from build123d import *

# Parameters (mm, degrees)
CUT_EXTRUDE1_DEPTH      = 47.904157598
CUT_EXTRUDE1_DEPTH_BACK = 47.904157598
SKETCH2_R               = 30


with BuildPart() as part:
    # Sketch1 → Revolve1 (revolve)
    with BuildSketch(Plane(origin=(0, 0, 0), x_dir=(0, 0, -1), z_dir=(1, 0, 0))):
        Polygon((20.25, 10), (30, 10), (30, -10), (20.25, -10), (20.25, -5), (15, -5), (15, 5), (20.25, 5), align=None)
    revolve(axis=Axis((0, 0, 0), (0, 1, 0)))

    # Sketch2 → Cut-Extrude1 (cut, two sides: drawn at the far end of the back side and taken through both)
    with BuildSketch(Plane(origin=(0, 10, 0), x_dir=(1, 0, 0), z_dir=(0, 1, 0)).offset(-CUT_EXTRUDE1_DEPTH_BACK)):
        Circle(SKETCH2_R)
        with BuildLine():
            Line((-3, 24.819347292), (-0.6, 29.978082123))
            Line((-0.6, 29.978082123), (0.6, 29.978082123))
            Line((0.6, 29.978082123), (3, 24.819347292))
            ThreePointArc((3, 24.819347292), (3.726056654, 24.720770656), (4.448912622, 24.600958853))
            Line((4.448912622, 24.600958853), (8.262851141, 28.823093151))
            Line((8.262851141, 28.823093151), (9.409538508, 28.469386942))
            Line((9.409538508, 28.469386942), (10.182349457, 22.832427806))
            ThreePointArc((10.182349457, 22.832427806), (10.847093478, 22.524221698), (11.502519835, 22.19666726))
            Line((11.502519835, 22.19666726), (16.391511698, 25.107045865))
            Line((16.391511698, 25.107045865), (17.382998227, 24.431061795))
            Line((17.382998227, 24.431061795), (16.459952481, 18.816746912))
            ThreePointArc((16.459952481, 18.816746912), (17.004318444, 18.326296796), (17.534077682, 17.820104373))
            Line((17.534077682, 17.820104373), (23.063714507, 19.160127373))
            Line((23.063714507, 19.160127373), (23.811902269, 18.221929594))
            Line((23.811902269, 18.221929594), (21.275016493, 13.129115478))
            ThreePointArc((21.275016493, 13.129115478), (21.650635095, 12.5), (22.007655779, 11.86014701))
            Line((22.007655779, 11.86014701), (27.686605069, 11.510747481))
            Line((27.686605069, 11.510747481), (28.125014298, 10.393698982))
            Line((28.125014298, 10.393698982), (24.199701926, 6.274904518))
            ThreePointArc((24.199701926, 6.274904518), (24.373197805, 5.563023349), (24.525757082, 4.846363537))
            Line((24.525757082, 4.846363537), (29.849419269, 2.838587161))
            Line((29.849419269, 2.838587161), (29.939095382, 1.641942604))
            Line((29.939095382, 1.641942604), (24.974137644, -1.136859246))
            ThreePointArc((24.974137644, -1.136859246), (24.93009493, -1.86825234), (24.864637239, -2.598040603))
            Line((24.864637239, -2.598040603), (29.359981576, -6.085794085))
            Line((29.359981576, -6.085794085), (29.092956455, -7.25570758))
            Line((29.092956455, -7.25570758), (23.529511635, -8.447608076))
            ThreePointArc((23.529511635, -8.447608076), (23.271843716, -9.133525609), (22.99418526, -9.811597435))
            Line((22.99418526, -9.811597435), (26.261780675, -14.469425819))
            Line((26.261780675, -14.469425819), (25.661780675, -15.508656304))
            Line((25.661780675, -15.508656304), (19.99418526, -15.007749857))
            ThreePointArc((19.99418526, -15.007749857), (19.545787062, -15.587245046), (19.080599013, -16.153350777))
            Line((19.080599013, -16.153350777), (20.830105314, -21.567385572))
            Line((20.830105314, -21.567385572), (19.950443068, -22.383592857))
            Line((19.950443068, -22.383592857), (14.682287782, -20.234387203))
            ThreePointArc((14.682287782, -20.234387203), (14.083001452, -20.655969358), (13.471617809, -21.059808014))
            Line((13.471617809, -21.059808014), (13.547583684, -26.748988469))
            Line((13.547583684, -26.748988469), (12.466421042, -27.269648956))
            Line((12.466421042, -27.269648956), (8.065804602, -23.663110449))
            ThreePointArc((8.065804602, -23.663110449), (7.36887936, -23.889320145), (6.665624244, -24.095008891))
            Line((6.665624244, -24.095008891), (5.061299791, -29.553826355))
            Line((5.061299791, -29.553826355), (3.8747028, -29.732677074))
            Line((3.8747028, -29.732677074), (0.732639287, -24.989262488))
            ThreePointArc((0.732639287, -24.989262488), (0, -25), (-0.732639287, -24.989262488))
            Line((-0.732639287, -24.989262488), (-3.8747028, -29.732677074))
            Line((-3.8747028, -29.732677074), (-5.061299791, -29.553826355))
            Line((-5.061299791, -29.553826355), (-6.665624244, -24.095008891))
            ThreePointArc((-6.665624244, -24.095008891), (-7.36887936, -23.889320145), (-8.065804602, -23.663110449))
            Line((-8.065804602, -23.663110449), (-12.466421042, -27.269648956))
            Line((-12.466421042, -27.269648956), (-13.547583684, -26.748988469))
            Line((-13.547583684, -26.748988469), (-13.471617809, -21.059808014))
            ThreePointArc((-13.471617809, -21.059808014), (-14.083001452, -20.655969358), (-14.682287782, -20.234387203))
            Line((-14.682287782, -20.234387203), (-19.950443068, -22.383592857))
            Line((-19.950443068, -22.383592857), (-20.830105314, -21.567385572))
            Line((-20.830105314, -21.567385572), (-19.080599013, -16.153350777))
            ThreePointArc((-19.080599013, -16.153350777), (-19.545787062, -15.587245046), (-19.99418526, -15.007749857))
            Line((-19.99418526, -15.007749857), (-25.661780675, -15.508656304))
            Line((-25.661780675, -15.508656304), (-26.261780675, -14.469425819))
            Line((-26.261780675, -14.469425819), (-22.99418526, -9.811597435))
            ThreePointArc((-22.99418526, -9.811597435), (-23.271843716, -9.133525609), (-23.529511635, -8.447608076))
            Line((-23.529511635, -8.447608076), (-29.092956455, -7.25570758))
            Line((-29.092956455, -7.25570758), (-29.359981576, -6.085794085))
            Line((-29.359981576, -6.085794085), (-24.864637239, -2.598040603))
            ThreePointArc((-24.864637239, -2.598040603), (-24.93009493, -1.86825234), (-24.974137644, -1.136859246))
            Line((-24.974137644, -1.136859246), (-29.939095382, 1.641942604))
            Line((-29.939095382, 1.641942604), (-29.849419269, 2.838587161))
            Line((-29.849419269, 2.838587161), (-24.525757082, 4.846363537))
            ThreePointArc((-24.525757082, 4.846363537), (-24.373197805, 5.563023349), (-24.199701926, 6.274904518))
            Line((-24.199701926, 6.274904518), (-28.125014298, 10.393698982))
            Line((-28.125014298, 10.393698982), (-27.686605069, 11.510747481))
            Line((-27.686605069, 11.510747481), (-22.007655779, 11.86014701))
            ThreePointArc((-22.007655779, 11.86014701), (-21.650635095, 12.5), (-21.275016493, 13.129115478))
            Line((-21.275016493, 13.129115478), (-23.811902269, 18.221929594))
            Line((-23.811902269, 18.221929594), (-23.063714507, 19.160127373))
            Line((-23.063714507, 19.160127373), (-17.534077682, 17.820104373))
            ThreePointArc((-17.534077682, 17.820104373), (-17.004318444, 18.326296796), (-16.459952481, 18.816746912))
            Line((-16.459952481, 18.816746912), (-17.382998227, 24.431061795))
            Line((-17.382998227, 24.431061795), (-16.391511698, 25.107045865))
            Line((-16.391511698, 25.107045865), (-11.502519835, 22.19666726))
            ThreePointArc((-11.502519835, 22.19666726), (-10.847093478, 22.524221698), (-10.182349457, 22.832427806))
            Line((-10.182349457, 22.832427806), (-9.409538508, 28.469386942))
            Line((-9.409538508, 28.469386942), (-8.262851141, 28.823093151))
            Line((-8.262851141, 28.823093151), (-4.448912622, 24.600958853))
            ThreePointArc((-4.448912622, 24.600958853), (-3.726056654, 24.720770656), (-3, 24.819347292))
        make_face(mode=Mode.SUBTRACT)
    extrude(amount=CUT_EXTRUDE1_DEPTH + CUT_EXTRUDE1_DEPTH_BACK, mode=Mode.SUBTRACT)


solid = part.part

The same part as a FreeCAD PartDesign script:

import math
import FreeCAD as App
import Part
import Sketcher

V = App.Vector

doc = App.newDocument("Part")
body = doc.addObject("PartDesign::Body", "Body")

sketch1 = doc.addObject("Sketcher::SketchObject", "Sketch")
body.addObject(sketch1)
sketch1.AttachmentSupport = (doc.YZ_Plane, [""])
sketch1.MapMode = "FlatFace"
sketch1.addGeometry([
    Part.LineSegment(V(10, -30, 0), V(10, -20, 0)),
    Part.LineSegment(V(10, -20, 0), V(5, -20, 0)),
    Part.LineSegment(V(5, -20, 0), V(5, -15, 0)),
    Part.LineSegment(V(5, -15, 0), V(-5, -15, 0)),
    Part.LineSegment(V(-5, -15, 0), V(-5, -20, 0)),
    Part.LineSegment(V(-5, -20, 0), V(-10, -20, 0)),
    Part.LineSegment(V(-10, -20, 0), V(-10, -30, 0)),
    Part.LineSegment(V(-10, -30, 0), V(10, -30, 0)),
], False)
sketch1.addConstraint([
    Sketcher.Constraint("Coincident", 0, 2, 1, 1),
    Sketcher.Constraint("Coincident", 1, 2, 2, 1),
    Sketcher.Constraint("Coincident", 2, 2, 3, 1),
    Sketcher.Constraint("Coincident", 3, 2, 4, 1),
    Sketcher.Constraint("Coincident", 4, 2, 5, 1),
    Sketcher.Constraint("Coincident", 5, 2, 6, 1),
    Sketcher.Constraint("Coincident", 6, 2, 7, 1),
    Sketcher.Constraint("Coincident", 7, 2, 0, 1),
    Sketcher.Constraint("Vertical", 0),
    Sketcher.Constraint("Horizontal", 1),
    Sketcher.Constraint("Vertical", 2),
    Sketcher.Constraint("Horizontal", 3),
    Sketcher.Constraint("Vertical", 4),
    Sketcher.Constraint("Horizontal", 5),
    Sketcher.Constraint("Vertical", 6),
    Sketcher.Constraint("Horizontal", 7),
    Sketcher.Constraint("Symmetric", 1, 2, 4, 2, -2),
    Sketcher.Constraint("Equal", 1, 5),
    Sketcher.Constraint("DistanceX", 1, 2, 1, 1, 5.0),
    Sketcher.Constraint("DistanceX", 3, 2, 3, 1, 10.0),
    Sketcher.Constraint("DistanceY", 2, 2, -1, 1, 15.0),
    Sketcher.Constraint("DistanceY", 6, 2, -1, 1, 30.0),
    Sketcher.Constraint("DistanceY", 0, 1, 0, 2, 9.75),
])
revolution = doc.addObject("PartDesign::Revolution", "Revolution")
body.addObject(revolution)
revolution.Profile = sketch1
revolution.ReferenceAxis = (sketch1, ["H_Axis"])
revolution.Angle = 360

sketch2 = doc.addObject("Sketcher::SketchObject", "Sketch001")
body.addObject(sketch2)
sketch2.AttachmentSupport = (doc.XZ_Plane, [""])
sketch2.MapMode = "FlatFace"
sketch2.AttachmentOffset = App.Placement(V(0, 0, -10), App.Rotation())
sketch2.addGeometry([
    Part.Circle(V(0, 0, 0), V(0, 0, 1), 30),
    Part.ArcOfCircle(Part.Circle(V(0, -0.000001, 0), V(0, 0, 1), 24.999999), math.radians(-100.250755), math.radians(-96.892103)),
    Part.LineSegment(V(-3, -24.819347, 0), V(-0.6, -29.978082, 0)),
    Part.LineSegment(V(-0.6, -29.978082, 0), V(0.6, -29.978082, 0)),
    Part.LineSegment(V(0.6, -29.978082, 0), V(3, -24.819347, 0)),
    Part.ArcOfCircle(Part.Circle(V(0, -0.000001, 0), V(0, 0, 1), 24.999999), math.radians(-83.107897), math.radians(-79.749245)),
    Part.LineSegment(V(4.448913, -24.600959, 0), V(8.262851, -28.823093, 0)),
    Part.LineSegment(V(8.262851, -28.823093, 0), V(9.409539, -28.469387, 0)),
    Part.LineSegment(V(9.409539, -28.469387, 0), V(10.182349, -22.832428, 0)),
    Part.ArcOfCircle(Part.Circle(V(0.000001, -0.000001, 0), V(0, 0, 1), 24.999999), math.radians(-65.96504), math.radians(-62.606388)),
    Part.LineSegment(V(11.50252, -22.196667, 0), V(16.391512, -25.107046, 0)),
    Part.LineSegment(V(16.391512, -25.107046, 0), V(17.382998, -24.431062, 0)),
    Part.LineSegment(V(17.382998, -24.431062, 0), V(16.459952, -18.816747, 0)),
    Part.ArcOfCircle(Part.Circle(V(-0.000001, 0.000001, 0), V(0, 0, 1), 25.000001), math.radians(-48.822183), math.radians(-45.463531)),
    Part.LineSegment(V(17.534078, -17.820104, 0), V(23.063715, -19.160127, 0)),
    Part.LineSegment(V(23.063715, -19.160127, 0), V(23.811902, -18.22193, 0)),
    Part.LineSegment(V(23.811902, -18.22193, 0), V(21.275016, -13.129115, 0)),
    Part.ArcOfCircle(Part.Circle(V(0.000001, 0, 0), V(0, 0, 1), 24.999999), math.radians(-31.679326), math.radians(-28.320674)),
    Part.LineSegment(V(22.007656, -11.860147, 0), V(27.686605, -11.510747, 0)),
    Part.LineSegment(V(27.686605, -11.510747, 0), V(28.125014, -10.393699, 0)),
    Part.LineSegment(V(28.125014, -10.393699, 0), V(24.199702, -6.274905, 0)),
    Part.ArcOfCircle(Part.Circle(V(0.000001, 0, 0), V(0, 0, 1), 24.999999), math.radians(-14.536469), math.radians(-11.177817)),
    Part.LineSegment(V(24.525757, -4.846364, 0), V(29.849419, -2.838587, 0)),
    Part.LineSegment(V(29.849419, -2.838587, 0), V(29.939095, -1.641943, 0)),
    Part.LineSegment(V(29.939095, -1.641943, 0), V(24.974138, 1.136859, 0)),
    Part.ArcOfCircle(Part.Circle(V(0.000001, 0, 0), V(0, 0, 1), 24.999999), math.radians(2.606388), math.radians(5.96504)),
    Part.LineSegment(V(24.864637, 2.598041, 0), V(29.359982, 6.085794, 0)),
    Part.LineSegment(V(29.359982, 6.085794, 0), V(29.092956, 7.255708, 0)),
    Part.LineSegment(V(29.092956, 7.255708, 0), V(23.529512, 8.447608, 0)),
    Part.ArcOfCircle(Part.Circle(V(0, 0, 0), V(0, 0, 1), 25), math.radians(19.749245), math.radians(23.107897)),
    Part.LineSegment(V(22.994185, 9.811597, 0), V(26.261781, 14.469426, 0)),
    Part.LineSegment(V(26.261781, 14.469426, 0), V(25.661781, 15.508656, 0)),
    Part.LineSegment(V(25.661781, 15.508656, 0), V(19.994185, 15.00775, 0)),
    Part.ArcOfCircle(Part.Circle(V(0, 0, 0), V(0, 0, 1), 25), math.radians(36.892103), math.radians(40.250755)),
    Part.LineSegment(V(19.080599, 16.153351, 0), V(20.830105, 21.567386, 0)),
    Part.LineSegment(V(20.830105, 21.567386, 0), V(19.950443, 22.383593, 0)),
    Part.LineSegment(V(19.950443, 22.383593, 0), V(14.682288, 20.234387, 0)),
    Part.ArcOfCircle(Part.Circle(V(0.000001, 0.000001, 0), V(0, 0, 1), 24.999999), math.radians(54.03496), math.radians(57.393612)),
    Part.LineSegment(V(13.471618, 21.059808, 0), V(13.547584, 26.748988, 0)),
    Part.LineSegment(V(13.547584, 26.748988, 0), V(12.466421, 27.269649, 0)),
    Part.LineSegment(V(12.466421, 27.269649, 0), V(8.065805, 23.66311, 0)),
    Part.ArcOfCircle(Part.Circle(V(0, 0, 0), V(0, 0, 1), 25), math.radians(71.177817), math.radians(74.536469)),
    Part.LineSegment(V(6.665624, 24.095009, 0), V(5.0613, 29.553826, 0)),
    Part.LineSegment(V(5.0613, 29.553826, 0), V(3.874703, 29.732677, 0)),
    Part.LineSegment(V(3.874703, 29.732677, 0), V(0.732639, 24.989262, 0)),
    Part.ArcOfCircle(Part.Circle(V(0, -0.000001, 0), V(0, 0, 1), 25.000001), math.radians(88.320674), math.radians(91.679326)),
    Part.LineSegment(V(-0.732639, 24.989262, 0), V(-3.874703, 29.732677, 0)),
    Part.LineSegment(V(-3.874703, 29.732677, 0), V(-5.0613, 29.553826, 0)),
    Part.LineSegment(V(-5.0613, 29.553826, 0), V(-6.665624, 24.095009, 0)),
    Part.ArcOfCircle(Part.Circle(V(0, 0, 0), V(0, 0, 1), 25), math.radians(105.463531), math.radians(108.822183)),
    Part.LineSegment(V(-8.065805, 23.66311, 0), V(-12.466421, 27.269649, 0)),
    Part.LineSegment(V(-12.466421, 27.269649, 0), V(-13.547584, 26.748988, 0)),
    Part.LineSegment(V(-13.547584, 26.748988, 0), V(-13.471618, 21.059808, 0)),
    Part.ArcOfCircle(Part.Circle(V(-0.000001, 0.000001, 0), V(0, 0, 1), 24.999999), math.radians(122.606388), math.radians(125.96504)),
    Part.LineSegment(V(-14.682288, 20.234387, 0), V(-19.950443, 22.383593, 0)),
    Part.LineSegment(V(-19.950443, 22.383593, 0), V(-20.830105, 21.567386, 0)),
    Part.LineSegment(V(-20.830105, 21.567386, 0), V(-19.080599, 16.153351, 0)),
    Part.ArcOfCircle(Part.Circle(V(0, 0, 0), V(0, 0, 1), 25), math.radians(139.749245), math.radians(143.107897)),
    Part.LineSegment(V(-19.994185, 15.00775, 0), V(-25.661781, 15.508656, 0)),
    Part.LineSegment(V(-25.661781, 15.508656, 0), V(-26.261781, 14.469426, 0)),
    Part.LineSegment(V(-26.261781, 14.469426, 0), V(-22.994185, 9.811597, 0)),
    Part.ArcOfCircle(Part.Circle(V(0, 0, 0), V(0, 0, 1), 25), math.radians(156.892103), math.radians(160.250755)),
    Part.LineSegment(V(-23.529512, 8.447608, 0), V(-29.092956, 7.255708, 0)),
    Part.LineSegment(V(-29.092956, 7.255708, 0), V(-29.359982, 6.085794, 0)),
    Part.LineSegment(V(-29.359982, 6.085794, 0), V(-24.864637, 2.598041, 0)),
    Part.ArcOfCircle(Part.Circle(V(-0.000001, 0, 0), V(0, 0, 1), 24.999999), math.radians(174.03496), math.radians(177.393612)),
    Part.LineSegment(V(-24.974138, 1.136859, 0), V(-29.939095, -1.641943, 0)),
    Part.LineSegment(V(-29.939095, -1.641943, 0), V(-29.849419, -2.838587, 0)),
    Part.LineSegment(V(-29.849419, -2.838587, 0), V(-24.525757, -4.846364, 0)),
    Part.ArcOfCircle(Part.Circle(V(-0.000001, 0, 0), V(0, 0, 1), 24.999999), math.radians(-168.822183), math.radians(-165.463531)),
    Part.LineSegment(V(-24.199702, -6.274905, 0), V(-28.125014, -10.393699, 0)),
    Part.LineSegment(V(-28.125014, -10.393699, 0), V(-27.686605, -11.510747, 0)),
    Part.LineSegment(V(-27.686605, -11.510747, 0), V(-22.007656, -11.860147, 0)),
    Part.ArcOfCircle(Part.Circle(V(-0.000001, 0, 0), V(0, 0, 1), 24.999999), math.radians(-151.679326), math.radians(-148.320674)),
    Part.LineSegment(V(-21.275016, -13.129115, 0), V(-23.811902, -18.22193, 0)),
    Part.LineSegment(V(-23.811902, -18.22193, 0), V(-23.063715, -19.160127, 0)),
    Part.LineSegment(V(-23.063715, -19.160127, 0), V(-17.534078, -17.820104, 0)),
    Part.ArcOfCircle(Part.Circle(V(0.000001, 0.000001, 0), V(0, 0, 1), 25.000001), math.radians(-134.536469), math.radians(-131.177817)),
    Part.LineSegment(V(-16.459952, -18.816747, 0), V(-17.382998, -24.431062, 0)),
    Part.LineSegment(V(-17.382998, -24.431062, 0), V(-16.391512, -25.107046, 0)),
    Part.LineSegment(V(-16.391512, -25.107046, 0), V(-11.50252, -22.196667, 0)),
    Part.ArcOfCircle(Part.Circle(V(-0.000001, -0.000001, 0), V(0, 0, 1), 24.999999), math.radians(-117.393612), math.radians(-114.03496)),
    Part.LineSegment(V(-10.182349, -22.832428, 0), V(-9.409539, -28.469387, 0)),
    Part.LineSegment(V(-9.409539, -28.469387, 0), V(-8.262851, -28.823093, 0)),
    Part.LineSegment(V(-8.262851, -28.823093, 0), V(-4.448913, -24.600959, 0)),
], False)
sketch2.addConstraint([
    Sketcher.Constraint("Coincident", 1, 2, 2, 1),
    Sketcher.Constraint("Coincident", 2, 2, 3, 1),
    Sketcher.Constraint("Coincident", 3, 2, 4, 1),
    Sketcher.Constraint("Coincident", 4, 2, 5, 1),
    Sketcher.Constraint("Coincident", 5, 2, 6, 1),
    Sketcher.Constraint("Coincident", 6, 2, 7, 1),
    Sketcher.Constraint("Coincident", 7, 2, 8, 1),
    Sketcher.Constraint("Coincident", 8, 2, 9, 1),
    Sketcher.Constraint("Coincident", 9, 2, 10, 1),
    Sketcher.Constraint("Coincident", 10, 2, 11, 1),
    Sketcher.Constraint("Coincident", 11, 2, 12, 1),
    Sketcher.Constraint("Coincident", 12, 2, 13, 1),
    Sketcher.Constraint("Coincident", 13, 2, 14, 1),
    Sketcher.Constraint("Coincident", 14, 2, 15, 1),
    Sketcher.Constraint("Coincident", 15, 2, 16, 1),
    Sketcher.Constraint("Coincident", 16, 2, 17, 1),
    Sketcher.Constraint("Coincident", 17, 2, 18, 1),
    Sketcher.Constraint("Coincident", 18, 2, 19, 1),
    Sketcher.Constraint("Coincident", 19, 2, 20, 1),
    Sketcher.Constraint("Coincident", 20, 2, 21, 1),
    Sketcher.Constraint("Coincident", 21, 2, 22, 1),
    Sketcher.Constraint("Coincident", 22, 2, 23, 1),
    Sketcher.Constraint("Coincident", 23, 2, 24, 1),
    Sketcher.Constraint("Coincident", 24, 2, 25, 1),
    Sketcher.Constraint("Coincident", 25, 2, 26, 1),
    Sketcher.Constraint("Coincident", 26, 2, 27, 1),
    Sketcher.Constraint("Coincident", 27, 2, 28, 1),
    Sketcher.Constraint("Coincident", 28, 2, 29, 1),
    Sketcher.Constraint("Coincident", 29, 2, 30, 1),
    Sketcher.Constraint("Coincident", 30, 2, 31, 1),
    Sketcher.Constraint("Coincident", 31, 2, 32, 1),
    Sketcher.Constraint("Coincident", 32, 2, 33, 1),
    Sketcher.Constraint("Coincident", 33, 2, 34, 1),
    Sketcher.Constraint("Coincident", 34, 2, 35, 1),
    Sketcher.Constraint("Coincident", 35, 2, 36, 1),
    Sketcher.Constraint("Coincident", 36, 2, 37, 1),
    Sketcher.Constraint("Coincident", 37, 2, 38, 1),
    Sketcher.Constraint("Coincident", 38, 2, 39, 1),
    Sketcher.Constraint("Coincident", 39, 2, 40, 1),
    Sketcher.Constraint("Coincident", 40, 2, 41, 1),
    Sketcher.Constraint("Coincident", 41, 2, 42, 1),
    Sketcher.Constraint("Coincident", 42, 2, 43, 1),
    Sketcher.Constraint("Coincident", 43, 2, 44, 1),
    Sketcher.Constraint("Coincident", 44, 2, 45, 1),
    Sketcher.Constraint("Coincident", 45, 2, 46, 1),
    Sketcher.Constraint("Coincident", 46, 2, 47, 1),
    Sketcher.Constraint("Coincident", 47, 2, 48, 1),
    Sketcher.Constraint("Coincident", 48, 2, 49, 1),
    Sketcher.Constraint("Coincident", 49, 2, 50, 1),
    Sketcher.Constraint("Coincident", 50, 2, 51, 1),
    Sketcher.Constraint("Coincident", 51, 2, 52, 1),
    Sketcher.Constraint("Coincident", 52, 2, 53, 1),
    Sketcher.Constraint("Coincident", 53, 2, 54, 1),
    Sketcher.Constraint("Coincident", 54, 2, 55, 1),
    Sketcher.Constraint("Coincident", 55, 2, 56, 1),
    Sketcher.Constraint("Coincident", 56, 2, 57, 1),
    Sketcher.Constraint("Coincident", 57, 2, 58, 1),
    Sketcher.Constraint("Coincident", 58, 2, 59, 1),
    Sketcher.Constraint("Coincident", 59, 2, 60, 1),
    Sketcher.Constraint("Coincident", 60, 2, 61, 1),
    Sketcher.Constraint("Coincident", 61, 2, 62, 1),
    Sketcher.Constraint("Coincident", 62, 2, 63, 1),
    Sketcher.Constraint("Coincident", 63, 2, 64, 1),
    Sketcher.Constraint("Coincident", 64, 2, 65, 1),
    Sketcher.Constraint("Coincident", 65, 2, 66, 1),
    Sketcher.Constraint("Coincident", 66, 2, 67, 1),
    Sketcher.Constraint("Coincident", 67, 2, 68, 1),
    Sketcher.Constraint("Coincident", 68, 2, 69, 1),
    Sketcher.Constraint("Coincident", 69, 2, 70, 1),
    Sketcher.Constraint("Coincident", 70, 2, 71, 1),
    Sketcher.Constraint("Coincident", 71, 2, 72, 1),
    Sketcher.Constraint("Coincident", 72, 2, 73, 1),
    Sketcher.Constraint("Coincident", 73, 2, 74, 1),
    Sketcher.Constraint("Coincident", 74, 2, 75, 1),
    Sketcher.Constraint("Coincident", 75, 2, 76, 1),
    Sketcher.Constraint("Coincident", 76, 2, 77, 1),
    Sketcher.Constraint("Coincident", 77, 2, 78, 1),
    Sketcher.Constraint("Coincident", 78, 2, 79, 1),
    Sketcher.Constraint("Coincident", 79, 2, 80, 1),
    Sketcher.Constraint("Coincident", 80, 2, 81, 1),
    Sketcher.Constraint("Coincident", 81, 2, 82, 1),
    Sketcher.Constraint("Coincident", 82, 2, 83, 1),
    Sketcher.Constraint("Coincident", 83, 2, 84, 1),
    Sketcher.Constraint("Coincident", 84, 2, 1, 1),
    Sketcher.Constraint("Horizontal", 3),
    Sketcher.Constraint("Coincident", 0, 3, -1, 1),
    Sketcher.Constraint("Coincident", 1, 3, -1, 1),
    Sketcher.Constraint("Coincident", 5, 3, -1, 1),
    Sketcher.Constraint("Coincident", 9, 3, -1, 1),
    Sketcher.Constraint("Coincident", 13, 3, -1, 1),
    Sketcher.Constraint("Coincident", 17, 3, -1, 1),
    Sketcher.Constraint("Coincident", 21, 3, -1, 1),
    Sketcher.Constraint("Coincident", 25, 3, -1, 1),
    Sketcher.Constraint("Coincident", 29, 3, -1, 1),
    Sketcher.Constraint("Coincident", 33, 3, -1, 1),
    Sketcher.Constraint("Coincident", 37, 3, -1, 1),
    Sketcher.Constraint("Coincident", 41, 3, -1, 1),
    Sketcher.Constraint("Coincident", 45, 3, -1, 1),
    Sketcher.Constraint("Coincident", 49, 3, -1, 1),
    Sketcher.Constraint("Coincident", 53, 3, -1, 1),
    Sketcher.Constraint("Coincident", 57, 3, -1, 1),
    Sketcher.Constraint("Coincident", 61, 3, -1, 1),
    Sketcher.Constraint("Coincident", 65, 3, -1, 1),
    Sketcher.Constraint("Coincident", 69, 3, -1, 1),
    Sketcher.Constraint("Coincident", 73, 3, -1, 1),
    Sketcher.Constraint("Coincident", 77, 3, -1, 1),
    Sketcher.Constraint("Coincident", 81, 3, -1, 1),
    Sketcher.Constraint("Diameter", 0, 60.0),
    Sketcher.Constraint("Radius", 1, 24.999999),
    Sketcher.Constraint("Radius", 5, 24.999999),
    Sketcher.Constraint("Radius", 9, 24.999999),
    Sketcher.Constraint("Radius", 13, 25.000001),
    Sketcher.Constraint("Radius", 17, 24.999999),
    Sketcher.Constraint("Radius", 21, 24.999999),
    Sketcher.Constraint("Radius", 25, 24.999999),
    Sketcher.Constraint("Radius", 29, 25.0),
    Sketcher.Constraint("Radius", 33, 25.0),
    Sketcher.Constraint("Radius", 37, 24.999999),
    Sketcher.Constraint("Radius", 41, 25.0),
    Sketcher.Constraint("Radius", 45, 25.000001),
    Sketcher.Constraint("Radius", 49, 25.0),
    Sketcher.Constraint("Radius", 53, 24.999999),
    Sketcher.Constraint("Radius", 57, 25.0),
    Sketcher.Constraint("Radius", 61, 25.0),
    Sketcher.Constraint("Radius", 65, 24.999999),
    Sketcher.Constraint("Radius", 69, 24.999999),
    Sketcher.Constraint("Radius", 73, 24.999999),
    Sketcher.Constraint("Radius", 77, 25.000001),
    Sketcher.Constraint("Radius", 81, 24.999999),
    Sketcher.Constraint("DistanceX", 3, 1, 3, 2, 1.2),
    Sketcher.Constraint("DistanceX", 1, 2, -1, 1, 3.0),
    Sketcher.Constraint("DistanceX", -1, 1, 4, 2, 3.0),
    Sketcher.Constraint("Distance", 7, 1.2),
    Sketcher.Constraint("Distance", 11, 1.2),
    Sketcher.Constraint("Distance", 15, 1.2),
    Sketcher.Constraint("Distance", 19, 1.2),
    Sketcher.Constraint("Distance", 23, 1.2),
    Sketcher.Constraint("Distance", 27, 1.2),
    Sketcher.Constraint("Distance", 31, 1.2),
    Sketcher.Constraint("Distance", 35, 1.2),
    Sketcher.Constraint("Distance", 39, 1.2),
    Sketcher.Constraint("Distance", 43, 1.2),
    Sketcher.Constraint("Distance", 47, 1.2),
    Sketcher.Constraint("Distance", 51, 1.2),
    Sketcher.Constraint("Distance", 55, 1.2),
    Sketcher.Constraint("Distance", 59, 1.2),
    Sketcher.Constraint("Distance", 63, 1.2),
    Sketcher.Constraint("Distance", 67, 1.2),
    Sketcher.Constraint("Distance", 71, 1.2),
    Sketcher.Constraint("Distance", 75, 1.2),
    Sketcher.Constraint("Distance", 79, 1.2),
    Sketcher.Constraint("Distance", 83, 1.2),
    Sketcher.Constraint("DistanceX", 2, 2, -1, 1, 0.6),
    Sketcher.Constraint("DistanceX", -1, 1, 11, 2, 17.382998),
    Sketcher.Constraint("DistanceX", 78, 2, -1, 1, 17.382998),
    Sketcher.Constraint("DistanceY", 19, 2, -1, 1, 10.393699),
    Sketcher.Constraint("DistanceX", -1, 1, 20, 2, 24.199702),
    Sketcher.Constraint("DistanceX", -1, 1, 33, 2, 19.080599),
    Sketcher.Constraint("DistanceX", -1, 1, 42, 2, 5.0613),
    Sketcher.Constraint("DistanceX", 47, 2, -1, 1, 5.0613),
    Sketcher.Constraint("DistanceX", 56, 2, -1, 1, 19.080599),
    Sketcher.Constraint("DistanceX", 69, 2, -1, 1, 24.199702),
    Sketcher.Constraint("DistanceY", 70, 2, -1, 1, 10.393699),
    Sketcher.Constraint("DistanceY", 5, 2, -1, 1, 24.600959),
    Sketcher.Constraint("DistanceX", -1, 1, 6, 2, 8.262851),
    Sketcher.Constraint("DistanceX", -1, 1, 7, 2, 9.409539),
    Sketcher.Constraint("DistanceX", -1, 1, 8, 2, 10.182349),
    Sketcher.Constraint("DistanceX", -1, 1, 9, 2, 11.50252),
    Sketcher.Constraint("DistanceX", -1, 1, 10, 2, 16.391512),
    Sketcher.Constraint("DistanceY", 11, 2, -1, 1, 24.431062),
    Sketcher.Constraint("DistanceY", 15, 2, -1, 1, 18.22193),
    Sketcher.Constraint("DistanceX", -1, 1, 22, 2, 29.849419),
    Sketcher.Constraint("DistanceY", -1, 1, 24, 2, 1.136859),
    Sketcher.Constraint("DistanceY", -1, 1, 25, 2, 2.598041),
    Sketcher.Constraint("DistanceX", -1, 1, 26, 2, 29.359982),
    Sketcher.Constraint("DistanceX", -1, 1, 28, 2, 23.529512),
    Sketcher.Constraint("DistanceX", -1, 1, 30, 2, 26.261781),
    Sketcher.Constraint("DistanceX", -1, 1, 31, 2, 25.661781),
    Sketcher.Constraint("DistanceY", -1, 1, 32, 2, 15.00775),
    Sketcher.Constraint("DistanceY", -1, 1, 37, 2, 21.059808),
    Sketcher.Constraint("DistanceY", -1, 1, 38, 2, 26.748988),
    Sketcher.Constraint("DistanceX", -1, 1, 39, 2, 12.466421),
    Sketcher.Constraint("DistanceY", -1, 1, 39, 2, 27.269649),
    Sketcher.Constraint("DistanceY", -1, 1, 40, 2, 23.66311),
    Sketcher.Constraint("DistanceY", -1, 1, 41, 2, 24.095009),
    Sketcher.Constraint("DistanceX", -1, 1, 44, 2, 0.732639),
    Sketcher.Constraint("DistanceX", 45, 2, -1, 1, 0.732639),
    Sketcher.Constraint("DistanceY", -1, 1, 48, 2, 24.095009),
    Sketcher.Constraint("DistanceY", -1, 1, 49, 2, 23.66311),
    Sketcher.Constraint("DistanceX", 50, 2, -1, 1, 12.466421),
    Sketcher.Constraint("DistanceY", -1, 1, 50, 2, 27.269649),
    Sketcher.Constraint("DistanceY", -1, 1, 51, 2, 26.748988),
    Sketcher.Constraint("DistanceY", -1, 1, 52, 2, 21.059808),
    Sketcher.Constraint("DistanceY", -1, 1, 57, 2, 15.00775),
    Sketcher.Constraint("DistanceX", 58, 2, -1, 1, 25.661781),
    Sketcher.Constraint("DistanceX", 59, 2, -1, 1, 26.261781),
    Sketcher.Constraint("DistanceX", 61, 2, -1, 1, 23.529512),
    Sketcher.Constraint("DistanceX", 63, 2, -1, 1, 29.359982),
    Sketcher.Constraint("DistanceY", -1, 1, 64, 2, 2.598041),
    Sketcher.Constraint("DistanceY", -1, 1, 65, 2, 1.136859),
    Sketcher.Constraint("DistanceX", 67, 2, -1, 1, 29.849419),
    Sketcher.Constraint("DistanceY", 74, 2, -1, 1, 18.22193),
    Sketcher.Constraint("DistanceY", 78, 2, -1, 1, 24.431062),
    Sketcher.Constraint("DistanceX", 79, 2, -1, 1, 16.391512),
    Sketcher.Constraint("DistanceX", 80, 2, -1, 1, 11.50252),
    Sketcher.Constraint("DistanceX", 81, 2, -1, 1, 10.182349),
    Sketcher.Constraint("DistanceX", 82, 2, -1, 1, 9.409539),
    Sketcher.Constraint("DistanceX", 83, 2, -1, 1, 8.262851),
    Sketcher.Constraint("DistanceY", 84, 2, -1, 1, 24.600959),
    Sketcher.Constraint("Distance", 2, 5.689688),
    Sketcher.Constraint("Distance", 6, 5.689688),
    Sketcher.Constraint("Distance", 12, 5.689688),
    Sketcher.Constraint("Distance", 14, 5.689688),
    Sketcher.Constraint("Distance", 16, 5.689688),
    Sketcher.Constraint("Distance", 18, 5.689688),
    Sketcher.Constraint("Distance", 20, 5.689688),
    Sketcher.Constraint("Distance", 22, 5.689688),
    Sketcher.Constraint("Distance", 24, 5.689688),
    Sketcher.Constraint("Distance", 26, 5.689688),
    Sketcher.Constraint("Distance", 28, 5.689688),
    Sketcher.Constraint("Distance", 30, 5.689688),
    Sketcher.Constraint("Distance", 32, 5.689688),
    Sketcher.Constraint("Distance", 34, 5.689688),
    Sketcher.Constraint("Distance", 36, 5.689688),
    Sketcher.Constraint("Distance", 42, 5.689688),
    Sketcher.Constraint("Distance", 44, 5.689688),
    Sketcher.Constraint("Distance", 46, 5.689688),
    Sketcher.Constraint("Distance", 48, 5.689688),
    Sketcher.Constraint("Distance", 54, 5.689688),
    Sketcher.Constraint("Distance", 56, 5.689688),
    Sketcher.Constraint("Distance", 58, 5.689688),
    Sketcher.Constraint("Distance", 60, 5.689688),
    Sketcher.Constraint("Distance", 62, 5.689688),
    Sketcher.Constraint("Distance", 64, 5.689688),
    Sketcher.Constraint("Distance", 66, 5.689688),
    Sketcher.Constraint("Distance", 68, 5.689688),
    Sketcher.Constraint("Distance", 70, 5.689688),
    Sketcher.Constraint("Distance", 72, 5.689688),
    Sketcher.Constraint("Distance", 74, 5.689688),
    Sketcher.Constraint("Distance", 76, 5.689688),
    Sketcher.Constraint("Distance", 78, 5.689688),
    Sketcher.Constraint("Distance", 82, 5.689688),
    Sketcher.Constraint("DistanceX", -1, 1, 13, 2, 17.534078),
    Sketcher.Constraint("DistanceX", -1, 1, 14, 2, 23.063715),
    Sketcher.Constraint("DistanceX", -1, 1, 17, 2, 22.007656),
    Sketcher.Constraint("DistanceX", -1, 1, 21, 2, 24.525757),
    Sketcher.Constraint("DistanceX", -1, 1, 34, 2, 20.830105),
    Sketcher.Constraint("DistanceX", -1, 1, 35, 2, 19.950443),
    Sketcher.Constraint("DistanceX", 53, 2, -1, 1, 14.682288),
    Sketcher.Constraint("DistanceX", 54, 2, -1, 1, 19.950443),
    Sketcher.Constraint("DistanceX", 66, 2, -1, 1, 29.939095),
    Sketcher.Constraint("DistanceX", 71, 2, -1, 1, 27.686605),
    Sketcher.Constraint("DistanceX", 73, 2, -1, 1, 21.275016),
    Sketcher.Constraint("DistanceX", 75, 2, -1, 1, 23.063715),
])
pocket1 = doc.addObject("PartDesign::Pocket", "Pocket")
body.addObject(pocket1)
pocket1.Profile = sketch2
pocket1.Type = "ThroughAll"
pocket1.Midplane = True

doc.recompute()
